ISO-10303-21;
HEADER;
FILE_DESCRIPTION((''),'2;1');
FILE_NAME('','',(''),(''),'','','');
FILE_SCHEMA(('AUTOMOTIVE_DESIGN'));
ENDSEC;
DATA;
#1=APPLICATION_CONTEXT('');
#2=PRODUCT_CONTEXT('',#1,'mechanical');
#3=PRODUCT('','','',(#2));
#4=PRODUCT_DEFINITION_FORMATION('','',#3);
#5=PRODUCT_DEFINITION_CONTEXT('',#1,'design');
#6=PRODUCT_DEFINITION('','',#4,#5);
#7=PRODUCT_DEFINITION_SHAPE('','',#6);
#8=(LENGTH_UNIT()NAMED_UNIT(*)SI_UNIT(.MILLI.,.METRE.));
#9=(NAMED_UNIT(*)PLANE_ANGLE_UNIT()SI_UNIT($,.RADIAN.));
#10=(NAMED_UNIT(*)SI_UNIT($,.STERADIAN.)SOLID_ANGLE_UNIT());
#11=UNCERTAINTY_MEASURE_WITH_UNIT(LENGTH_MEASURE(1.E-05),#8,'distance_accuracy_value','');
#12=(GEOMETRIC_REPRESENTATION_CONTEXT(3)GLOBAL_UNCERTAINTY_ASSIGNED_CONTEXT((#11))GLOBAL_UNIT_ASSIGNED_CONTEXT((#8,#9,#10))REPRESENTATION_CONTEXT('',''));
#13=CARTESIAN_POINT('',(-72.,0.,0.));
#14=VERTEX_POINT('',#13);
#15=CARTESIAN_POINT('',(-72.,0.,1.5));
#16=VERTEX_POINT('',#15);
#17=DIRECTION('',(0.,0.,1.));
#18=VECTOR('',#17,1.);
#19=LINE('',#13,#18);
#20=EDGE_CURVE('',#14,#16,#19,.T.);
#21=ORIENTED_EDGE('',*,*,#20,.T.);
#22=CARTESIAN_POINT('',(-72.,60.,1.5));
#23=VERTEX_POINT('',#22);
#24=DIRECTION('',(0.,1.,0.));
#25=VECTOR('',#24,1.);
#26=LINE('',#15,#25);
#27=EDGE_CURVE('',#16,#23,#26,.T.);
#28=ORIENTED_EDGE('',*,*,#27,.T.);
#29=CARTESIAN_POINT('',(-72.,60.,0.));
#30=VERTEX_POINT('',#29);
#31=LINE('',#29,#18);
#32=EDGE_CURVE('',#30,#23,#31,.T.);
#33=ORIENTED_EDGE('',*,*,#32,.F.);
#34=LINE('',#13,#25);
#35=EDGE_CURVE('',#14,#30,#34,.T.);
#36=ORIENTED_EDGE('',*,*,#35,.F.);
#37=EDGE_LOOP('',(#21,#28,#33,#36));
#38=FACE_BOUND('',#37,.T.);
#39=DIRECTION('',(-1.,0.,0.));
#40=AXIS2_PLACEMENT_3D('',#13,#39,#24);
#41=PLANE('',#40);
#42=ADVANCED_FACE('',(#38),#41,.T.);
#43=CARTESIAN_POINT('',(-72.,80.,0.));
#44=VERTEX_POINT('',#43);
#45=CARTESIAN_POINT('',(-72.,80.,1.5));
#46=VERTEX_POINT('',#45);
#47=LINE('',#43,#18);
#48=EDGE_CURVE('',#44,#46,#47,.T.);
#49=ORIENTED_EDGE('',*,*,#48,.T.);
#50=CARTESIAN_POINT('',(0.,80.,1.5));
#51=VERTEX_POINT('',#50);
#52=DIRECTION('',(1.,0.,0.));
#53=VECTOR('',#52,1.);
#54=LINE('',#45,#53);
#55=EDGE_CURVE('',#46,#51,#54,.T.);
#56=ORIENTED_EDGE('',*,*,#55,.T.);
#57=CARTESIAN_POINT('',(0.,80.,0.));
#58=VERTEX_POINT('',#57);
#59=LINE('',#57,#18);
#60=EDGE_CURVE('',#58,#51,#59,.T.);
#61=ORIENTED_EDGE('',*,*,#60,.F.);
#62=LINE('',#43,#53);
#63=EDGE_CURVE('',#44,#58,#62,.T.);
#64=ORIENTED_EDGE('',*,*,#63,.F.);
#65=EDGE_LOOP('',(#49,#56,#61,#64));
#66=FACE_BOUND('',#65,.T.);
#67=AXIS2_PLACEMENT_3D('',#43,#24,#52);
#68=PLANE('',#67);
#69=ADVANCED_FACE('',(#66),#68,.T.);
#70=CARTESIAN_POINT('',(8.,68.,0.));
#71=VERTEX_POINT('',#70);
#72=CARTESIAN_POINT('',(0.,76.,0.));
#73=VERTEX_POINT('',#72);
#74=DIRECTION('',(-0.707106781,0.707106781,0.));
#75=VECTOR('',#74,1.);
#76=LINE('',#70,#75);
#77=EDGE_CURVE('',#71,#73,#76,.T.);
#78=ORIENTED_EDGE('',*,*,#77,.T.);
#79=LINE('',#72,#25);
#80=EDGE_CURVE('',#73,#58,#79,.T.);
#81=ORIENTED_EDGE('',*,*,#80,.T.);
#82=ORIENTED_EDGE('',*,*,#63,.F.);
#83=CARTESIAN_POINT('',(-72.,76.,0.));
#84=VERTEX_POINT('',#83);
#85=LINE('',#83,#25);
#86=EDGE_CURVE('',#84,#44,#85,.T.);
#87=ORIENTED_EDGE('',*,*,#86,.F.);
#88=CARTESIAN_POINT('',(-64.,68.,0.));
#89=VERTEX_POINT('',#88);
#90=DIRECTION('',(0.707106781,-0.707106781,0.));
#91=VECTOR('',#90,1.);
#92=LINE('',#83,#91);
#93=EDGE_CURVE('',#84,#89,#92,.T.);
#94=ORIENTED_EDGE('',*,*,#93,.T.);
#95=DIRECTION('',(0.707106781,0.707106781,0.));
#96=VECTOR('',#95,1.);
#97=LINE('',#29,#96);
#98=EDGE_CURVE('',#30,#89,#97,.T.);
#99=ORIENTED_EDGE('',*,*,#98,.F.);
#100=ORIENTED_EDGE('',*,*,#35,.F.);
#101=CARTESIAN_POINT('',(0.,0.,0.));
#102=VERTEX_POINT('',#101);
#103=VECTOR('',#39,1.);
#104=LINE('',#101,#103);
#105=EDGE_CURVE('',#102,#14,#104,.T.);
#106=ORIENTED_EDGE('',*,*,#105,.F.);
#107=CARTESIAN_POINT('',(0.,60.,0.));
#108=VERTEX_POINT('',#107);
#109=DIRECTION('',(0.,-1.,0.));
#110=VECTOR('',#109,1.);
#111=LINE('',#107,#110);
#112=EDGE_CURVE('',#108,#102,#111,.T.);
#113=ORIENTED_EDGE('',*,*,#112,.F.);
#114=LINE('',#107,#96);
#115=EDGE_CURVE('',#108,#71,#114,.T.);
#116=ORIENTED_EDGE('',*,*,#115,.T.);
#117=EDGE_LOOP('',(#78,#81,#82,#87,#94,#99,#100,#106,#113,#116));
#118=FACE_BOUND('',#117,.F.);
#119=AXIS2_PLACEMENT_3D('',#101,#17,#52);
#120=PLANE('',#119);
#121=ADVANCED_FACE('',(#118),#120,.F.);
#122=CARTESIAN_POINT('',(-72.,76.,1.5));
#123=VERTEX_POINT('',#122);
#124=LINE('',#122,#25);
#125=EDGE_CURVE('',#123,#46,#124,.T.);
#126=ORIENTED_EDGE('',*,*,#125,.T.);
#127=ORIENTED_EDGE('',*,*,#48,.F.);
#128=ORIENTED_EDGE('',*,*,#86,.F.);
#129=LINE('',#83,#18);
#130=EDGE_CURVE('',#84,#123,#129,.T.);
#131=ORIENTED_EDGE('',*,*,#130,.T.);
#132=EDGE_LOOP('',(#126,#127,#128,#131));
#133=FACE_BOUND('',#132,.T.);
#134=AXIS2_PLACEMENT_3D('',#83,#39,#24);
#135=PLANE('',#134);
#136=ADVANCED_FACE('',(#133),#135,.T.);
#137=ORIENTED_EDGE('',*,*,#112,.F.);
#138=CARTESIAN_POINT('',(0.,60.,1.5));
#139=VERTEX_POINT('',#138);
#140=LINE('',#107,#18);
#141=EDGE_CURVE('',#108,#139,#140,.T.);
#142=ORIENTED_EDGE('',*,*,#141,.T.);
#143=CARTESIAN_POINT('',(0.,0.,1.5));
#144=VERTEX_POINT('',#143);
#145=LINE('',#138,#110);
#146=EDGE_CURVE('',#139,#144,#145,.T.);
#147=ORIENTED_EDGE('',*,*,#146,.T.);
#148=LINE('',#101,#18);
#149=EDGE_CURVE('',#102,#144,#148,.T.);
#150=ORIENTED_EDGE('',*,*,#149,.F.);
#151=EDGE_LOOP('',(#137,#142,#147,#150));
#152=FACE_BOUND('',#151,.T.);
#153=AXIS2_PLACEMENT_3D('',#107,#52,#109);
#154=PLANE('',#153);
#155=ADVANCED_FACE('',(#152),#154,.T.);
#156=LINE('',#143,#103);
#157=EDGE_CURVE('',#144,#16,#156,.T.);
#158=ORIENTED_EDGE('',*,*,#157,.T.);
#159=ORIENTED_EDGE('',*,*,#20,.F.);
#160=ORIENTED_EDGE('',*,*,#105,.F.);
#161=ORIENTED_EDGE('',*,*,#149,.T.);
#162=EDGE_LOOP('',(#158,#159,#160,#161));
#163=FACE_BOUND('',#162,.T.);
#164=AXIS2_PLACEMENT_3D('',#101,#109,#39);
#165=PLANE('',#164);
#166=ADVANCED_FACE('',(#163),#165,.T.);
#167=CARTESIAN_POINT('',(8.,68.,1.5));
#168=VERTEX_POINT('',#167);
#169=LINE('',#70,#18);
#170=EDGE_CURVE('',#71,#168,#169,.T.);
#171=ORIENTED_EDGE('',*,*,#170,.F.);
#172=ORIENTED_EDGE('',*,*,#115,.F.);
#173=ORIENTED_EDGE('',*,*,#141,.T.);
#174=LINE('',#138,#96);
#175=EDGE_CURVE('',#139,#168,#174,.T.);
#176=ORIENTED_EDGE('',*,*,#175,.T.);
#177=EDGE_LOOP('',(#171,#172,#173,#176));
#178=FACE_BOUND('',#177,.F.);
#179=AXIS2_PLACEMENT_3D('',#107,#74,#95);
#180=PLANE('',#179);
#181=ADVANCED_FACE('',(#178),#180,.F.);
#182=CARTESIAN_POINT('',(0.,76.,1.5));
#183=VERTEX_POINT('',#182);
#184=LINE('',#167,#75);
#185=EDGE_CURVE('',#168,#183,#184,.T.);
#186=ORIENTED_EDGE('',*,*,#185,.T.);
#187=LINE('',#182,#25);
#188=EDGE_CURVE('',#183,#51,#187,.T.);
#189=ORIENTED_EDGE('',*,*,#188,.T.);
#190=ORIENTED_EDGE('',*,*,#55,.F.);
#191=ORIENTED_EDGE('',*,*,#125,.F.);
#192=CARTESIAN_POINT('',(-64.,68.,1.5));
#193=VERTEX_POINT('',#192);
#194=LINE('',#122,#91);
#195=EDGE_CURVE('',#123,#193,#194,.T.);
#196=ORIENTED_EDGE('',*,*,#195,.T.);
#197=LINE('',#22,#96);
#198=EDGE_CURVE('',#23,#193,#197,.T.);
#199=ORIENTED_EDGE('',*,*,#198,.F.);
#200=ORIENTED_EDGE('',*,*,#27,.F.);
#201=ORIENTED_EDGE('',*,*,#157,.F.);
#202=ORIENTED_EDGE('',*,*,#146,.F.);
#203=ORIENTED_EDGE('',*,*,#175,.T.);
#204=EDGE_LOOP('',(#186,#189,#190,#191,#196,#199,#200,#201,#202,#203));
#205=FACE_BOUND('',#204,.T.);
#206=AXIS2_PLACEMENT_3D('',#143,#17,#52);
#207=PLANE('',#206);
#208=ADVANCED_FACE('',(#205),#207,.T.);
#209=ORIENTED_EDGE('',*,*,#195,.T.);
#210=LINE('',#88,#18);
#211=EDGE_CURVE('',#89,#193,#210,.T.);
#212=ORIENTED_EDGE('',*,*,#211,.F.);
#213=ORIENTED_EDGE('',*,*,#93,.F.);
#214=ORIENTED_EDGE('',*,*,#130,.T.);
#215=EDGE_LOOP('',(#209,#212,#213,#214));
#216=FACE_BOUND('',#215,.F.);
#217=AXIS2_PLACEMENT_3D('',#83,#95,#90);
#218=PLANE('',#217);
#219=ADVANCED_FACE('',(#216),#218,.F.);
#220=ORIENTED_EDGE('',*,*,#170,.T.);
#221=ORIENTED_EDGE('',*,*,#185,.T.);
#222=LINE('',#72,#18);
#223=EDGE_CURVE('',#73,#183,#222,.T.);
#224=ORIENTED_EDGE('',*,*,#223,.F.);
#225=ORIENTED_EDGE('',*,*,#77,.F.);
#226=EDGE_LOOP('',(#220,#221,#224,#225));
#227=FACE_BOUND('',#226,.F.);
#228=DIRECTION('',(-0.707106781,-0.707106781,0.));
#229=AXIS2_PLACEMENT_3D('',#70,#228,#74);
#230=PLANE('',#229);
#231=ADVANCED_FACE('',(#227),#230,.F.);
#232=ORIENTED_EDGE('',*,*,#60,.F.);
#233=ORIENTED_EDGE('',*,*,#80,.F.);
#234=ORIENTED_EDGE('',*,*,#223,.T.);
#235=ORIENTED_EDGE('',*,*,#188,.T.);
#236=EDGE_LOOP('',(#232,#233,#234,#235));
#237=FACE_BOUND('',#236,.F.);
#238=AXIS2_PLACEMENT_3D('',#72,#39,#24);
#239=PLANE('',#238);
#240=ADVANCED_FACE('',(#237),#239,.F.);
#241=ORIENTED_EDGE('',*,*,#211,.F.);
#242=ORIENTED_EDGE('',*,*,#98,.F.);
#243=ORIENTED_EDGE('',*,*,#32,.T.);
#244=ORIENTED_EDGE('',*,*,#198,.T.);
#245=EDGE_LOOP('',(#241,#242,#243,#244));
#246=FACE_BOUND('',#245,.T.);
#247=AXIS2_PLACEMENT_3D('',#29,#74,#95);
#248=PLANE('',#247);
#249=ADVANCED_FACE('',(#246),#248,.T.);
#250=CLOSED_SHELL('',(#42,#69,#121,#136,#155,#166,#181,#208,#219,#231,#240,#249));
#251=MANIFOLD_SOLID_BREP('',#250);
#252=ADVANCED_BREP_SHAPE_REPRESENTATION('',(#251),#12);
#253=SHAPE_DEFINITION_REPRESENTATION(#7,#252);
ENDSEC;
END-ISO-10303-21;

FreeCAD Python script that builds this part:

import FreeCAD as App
import Part
import Sketcher
from FreeCAD import Vector
Q = App.Units.Quantity

doc = App.newDocument("Part")
body = doc.addObject("PartDesign::Body", "Body")

sketch1 = body.newObject("Sketcher::SketchObject", "Sketch")
sketch1.AttachmentSupport = (doc.getObject("XY_Plane"), [""])
sketch1.MapMode = "FlatFace"
sketch1.addGeometry(Part.LineSegment(Vector(-72, 0, 0), Vector(0, 0, 0)), False)
sketch1.addGeometry(Part.LineSegment(Vector(0, 0, 0), Vector(0, 60, 0)), False)
sketch1.addGeometry(Part.LineSegment(Vector(0, 60, 0), Vector(8, 68, 0)), False)
sketch1.addGeometry(Part.LineSegment(Vector(8, 68, 0), Vector(0, 76, 0)), False)
sketch1.addGeometry(Part.LineSegment(Vector(0, 76, 0), Vector(0, 80, 0)), False)
sketch1.addGeometry(Part.LineSegment(Vector(0, 80, 0), Vector(-72, 80, 0)), False)
sketch1.addGeometry(Part.LineSegment(Vector(-72, 80, 0), Vector(-72, 76, 0)), False)
sketch1.addGeometry(Part.LineSegment(Vector(-72, 76, 0), Vector(-64, 68, 0)), False)
sketch1.addGeometry(Part.LineSegment(Vector(-64, 68, 0), Vector(-72, 60, 0)), False)
sketch1.addGeometry(Part.LineSegment(Vector(-72, 60, 0), Vector(-72, 0, 0)), False)
sketch1.addConstraint(Sketcher.Constraint("Coincident", 0, 2, 1, 1))
sketch1.addConstraint(Sketcher.Constraint("Coincident", 1, 2, 2, 1))
sketch1.addConstraint(Sketcher.Constraint("Coincident", 2, 2, 3, 1))
sketch1.addConstraint(Sketcher.Constraint("Coincident", 3, 2, 4, 1))
sketch1.addConstraint(Sketcher.Constraint("Coincident", 4, 2, 5, 1))
sketch1.addConstraint(Sketcher.Constraint("Coincident", 5, 2, 6, 1))
sketch1.addConstraint(Sketcher.Constraint("Coincident", 6, 2, 7, 1))
sketch1.addConstraint(Sketcher.Constraint("Coincident", 7, 2, 8, 1))
sketch1.addConstraint(Sketcher.Constraint("Coincident", 8, 2, 9, 1))
sketch1.addConstraint(Sketcher.Constraint("Coincident", 9, 2, 0, 1))
sketch1.addConstraint(Sketcher.Constraint("Horizontal", 0))
sketch1.addConstraint(Sketcher.Constraint("Vertical", 1))
sketch1.addConstraint(Sketcher.Constraint("Vertical", 4))
sketch1.addConstraint(Sketcher.Constraint("Horizontal", 5))
sketch1.addConstraint(Sketcher.Constraint("Vertical", 6))
sketch1.addConstraint(Sketcher.Constraint("Vertical", 9))
sketch1.addConstraint(Sketcher.Constraint("Coincident", 0, 2, -1, 1))
sketch1.addConstraint(Sketcher.Constraint("PointOnObject", 3, 2, -2))
sketch1.addConstraint(Sketcher.Constraint("Perpendicular", 2, 3))
sketch1.addConstraint(Sketcher.Constraint("Parallel", 3, 7))
sketch1.addConstraint(Sketcher.Constraint("Perpendicular", 7, 8))
sketch1.addConstraint(Sketcher.Constraint("Horizontal", 3, 2, 6, 2))
sketch1.addConstraint(Sketcher.Constraint("Horizontal", 2, 2, 7, 2))
sketch1.addConstraint(Sketcher.Constraint("Horizontal", 1, 2, 8, 2))
sketch1.addConstraint(Sketcher.Constraint("Equal", 2, 3))
sketch1.addConstraint(Sketcher.Constraint("DistanceX", 0, 1, 0, 2, Q("72 mm")))
sketch1.addConstraint(Sketcher.Constraint("DistanceY", 1, 1, 1, 2, Q("60 mm")))
sketch1.addConstraint(Sketcher.Constraint("DistanceY", -1, 1, 4, 2, Q("80 mm")))
sketch1.addConstraint(Sketcher.Constraint("DistanceX", 5, 2, 2, 2, Q("80 mm")))
pad1 = body.newObject("PartDesign::Pad", "Pad")
pad1.Profile = sketch1
pad1.Length = 1.5

doc.recompute()
